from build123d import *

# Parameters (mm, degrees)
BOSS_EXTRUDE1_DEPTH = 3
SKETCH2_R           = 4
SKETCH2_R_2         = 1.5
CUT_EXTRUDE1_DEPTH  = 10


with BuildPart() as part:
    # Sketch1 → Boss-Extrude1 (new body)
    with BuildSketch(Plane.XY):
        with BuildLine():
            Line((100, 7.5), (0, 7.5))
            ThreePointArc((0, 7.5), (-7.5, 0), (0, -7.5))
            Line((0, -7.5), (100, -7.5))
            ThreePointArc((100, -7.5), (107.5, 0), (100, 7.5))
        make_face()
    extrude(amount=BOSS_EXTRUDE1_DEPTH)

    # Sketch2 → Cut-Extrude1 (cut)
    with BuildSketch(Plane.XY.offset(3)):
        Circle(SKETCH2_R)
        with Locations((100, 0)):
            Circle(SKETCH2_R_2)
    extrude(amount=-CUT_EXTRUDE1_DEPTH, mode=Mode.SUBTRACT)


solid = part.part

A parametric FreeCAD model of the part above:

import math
import FreeCAD as App
import Part
import Sketcher
Q = App.Units.Quantity

doc = App.newDocument("Part")
body = doc.addObject("PartDesign::Body", "Body")

sketch1 = doc.addObject("Sketcher::SketchObject", "Sketch")
body.addObject(sketch1)
sketch1.AttachmentSupport = (doc.XY_Plane, [""])
sketch1.MapMode = "FlatFace"
sketch1.addGeometry([
    Part.LineSegment(App.Vector(100, 7.5, 0), App.Vector(0, 7.5, 0)),
    Part.ArcOfCircle(Part.Circle(App.Vector(0, 0, 0), App.Vector(0, 0, 1), 7.5), math.radians(90), math.radians(270)),
    Part.LineSegment(App.Vector(0, -7.5, 0), App.Vector(100, -7.5, 0)),
    Part.ArcOfCircle(Part.Circle(App.Vector(100, 0, 0), App.Vector(0, 0, 1), 7.5), math.radians(-90), math.radians(90)),
], False)
sketch1.addConstraint([
    Sketcher.Constraint("Tangent", 0, 2, 1, 1),
    Sketcher.Constraint("Tangent", 1, 2, 2, 1),
    Sketcher.Constraint("Tangent", 2, 2, 3, 1),
    Sketcher.Constraint("Tangent", 3, 2, 0, 1),
    Sketcher.Constraint("Horizontal", 0),
    Sketcher.Constraint("Horizontal", 2),
    Sketcher.Constraint("Coincident", 1, 3, -1, 1),
    Sketcher.Constraint("Radius", 1, Q("7.5 mm")),
    Sketcher.Constraint("DistanceX", 0, 2, 0, 1, Q("100 mm")),
])
pad1 = doc.addObject("PartDesign::Pad", "Pad")
body.addObject(pad1)
pad1.Profile = sketch1
pad1.Length = 3

sketch2 = doc.addObject("Sketcher::SketchObject", "Sketch001")
body.addObject(sketch2)
sketch2.AttachmentSupport = (doc.XY_Plane, [""])
sketch2.MapMode = "FlatFace"
sketch2.AttachmentOffset = App.Placement(App.Vector(0, 0, 3), App.Rotation())
sketch2.addGeometry([
    Part.Circle(App.Vector(0, 0, 0), App.Vector(0, 0, 1), 4),
    Part.Circle(App.Vector(100, 0, 0), App.Vector(0, 0, 1), 1.5),
], False)
sketch2.addConstraint([
    Sketcher.Constraint("Coincident", 0, 3, -1, 1),
    Sketcher.Constraint("PointOnObject", 1, 3, -1),
    Sketcher.Constraint("Diameter", 0, Q("8 mm")),
    Sketcher.Constraint("Diameter", 1, Q("3 mm")),
    Sketcher.Constraint("DistanceX", -1, 1, 1, 3, Q("100 mm")),
])
pocket1 = doc.addObject("PartDesign::Pocket", "Pocket")
body.addObject(pocket1)
pocket1.Profile = sketch2
pocket1.Length = 10

doc.recompute()
